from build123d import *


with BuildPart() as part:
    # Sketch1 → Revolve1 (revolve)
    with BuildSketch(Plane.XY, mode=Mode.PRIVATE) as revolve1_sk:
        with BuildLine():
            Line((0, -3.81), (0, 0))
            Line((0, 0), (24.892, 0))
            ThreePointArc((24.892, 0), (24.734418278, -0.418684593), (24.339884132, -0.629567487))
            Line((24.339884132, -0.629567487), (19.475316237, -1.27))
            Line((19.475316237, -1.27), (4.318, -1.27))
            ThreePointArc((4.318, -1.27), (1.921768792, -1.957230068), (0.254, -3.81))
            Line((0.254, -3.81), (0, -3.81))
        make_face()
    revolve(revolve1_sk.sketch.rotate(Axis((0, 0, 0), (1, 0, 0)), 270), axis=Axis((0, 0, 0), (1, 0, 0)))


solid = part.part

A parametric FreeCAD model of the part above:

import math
import FreeCAD as App
import Part
import Sketcher
Q = App.Units.Quantity

doc = App.newDocument("Part")
body = doc.addObject("PartDesign::Body", "Body")

# Sketch on XY plane
sketch1 = body.newObject("Sketcher::SketchObject", "Sketch")
sketch1.AttachmentSupport = (doc.getObject("XY_Plane"), [""])
sketch1.MapMode = "FlatFace"
sketch1.addGeometry([
    Part.LineSegment(App.Vector(0, 0, 0), App.Vector(0, -3.81, 0)),  # 0
    Part.LineSegment(App.Vector(0, -3.81, 0), App.Vector(0.25, -3.81, 0)),  # 1
    Part.ArcOfCircle(Part.Circle(App.Vector(4.32, -5.79, 0), App.Vector(0, 0, 1), 4.52), math.radians(90), math.radians(154)),  # 2
    Part.LineSegment(App.Vector(4.32, -1.27, 0), App.Vector(19.48, -1.27, 0)),  # 3
    Part.LineSegment(App.Vector(19.48, -1.27, 0), App.Vector(24.34, -0.63, 0)),  # 4
    Part.ArcOfCircle(Part.Circle(App.Vector(24.26, 0, 0), App.Vector(0, 0, 1), 0.63), math.radians(-83), math.radians(0)),  # 5
    Part.LineSegment(App.Vector(24.89, 0, 0), App.Vector(0, 0, 0)),  # 6
], False)
sketch1.addConstraint([
    Sketcher.Constraint("Coincident", 0, 2, 1, 1),
    Sketcher.Constraint("Coincident", 1, 2, 2, 2),
    Sketcher.Constraint("Tangent", 2, 1, 3, 1),
    Sketcher.Constraint("Coincident", 3, 2, 4, 1),
    Sketcher.Constraint("Tangent", 4, 2, 5, 1),
    Sketcher.Constraint("Coincident", 5, 2, 6, 1),
    Sketcher.Constraint("Coincident", 6, 2, 0, 1),
    Sketcher.Constraint("Vertical", 0),
    Sketcher.Constraint("Horizontal", 1),
    Sketcher.Constraint("Horizontal", 3),
    Sketcher.Constraint("Horizontal", 6),
    Sketcher.Constraint("Coincident", 6, 2, -1, 1),
    Sketcher.Constraint("PointOnObject", 5, 3, -1),
    Sketcher.Constraint("Radius", 2, Q("0.178 in")),
    Sketcher.Constraint("Radius", 5, Q("0.025 in")),
    Sketcher.Constraint("DistanceX", 1, 1, 1, 2, Q("0.01 in")),
    Sketcher.Constraint("DistanceX", 6, 2, 6, 1, Q("0.98 in")),
    Sketcher.Constraint("DistanceY", 0, 2, 0, 1, Q("0.15 in")),
    Sketcher.Constraint("Angle", 4, Q("7.5 deg")),
    Sketcher.Constraint("DistanceY", 1, 2, 2, 1, Q("0.1 in")),
])
revolution = body.newObject("PartDesign::Revolution", "Revolution")
revolution.Profile = sketch1
revolution.ReferenceAxis = (sketch1, ["H_Axis"])
revolution.Angle = 360

doc.recompute()
